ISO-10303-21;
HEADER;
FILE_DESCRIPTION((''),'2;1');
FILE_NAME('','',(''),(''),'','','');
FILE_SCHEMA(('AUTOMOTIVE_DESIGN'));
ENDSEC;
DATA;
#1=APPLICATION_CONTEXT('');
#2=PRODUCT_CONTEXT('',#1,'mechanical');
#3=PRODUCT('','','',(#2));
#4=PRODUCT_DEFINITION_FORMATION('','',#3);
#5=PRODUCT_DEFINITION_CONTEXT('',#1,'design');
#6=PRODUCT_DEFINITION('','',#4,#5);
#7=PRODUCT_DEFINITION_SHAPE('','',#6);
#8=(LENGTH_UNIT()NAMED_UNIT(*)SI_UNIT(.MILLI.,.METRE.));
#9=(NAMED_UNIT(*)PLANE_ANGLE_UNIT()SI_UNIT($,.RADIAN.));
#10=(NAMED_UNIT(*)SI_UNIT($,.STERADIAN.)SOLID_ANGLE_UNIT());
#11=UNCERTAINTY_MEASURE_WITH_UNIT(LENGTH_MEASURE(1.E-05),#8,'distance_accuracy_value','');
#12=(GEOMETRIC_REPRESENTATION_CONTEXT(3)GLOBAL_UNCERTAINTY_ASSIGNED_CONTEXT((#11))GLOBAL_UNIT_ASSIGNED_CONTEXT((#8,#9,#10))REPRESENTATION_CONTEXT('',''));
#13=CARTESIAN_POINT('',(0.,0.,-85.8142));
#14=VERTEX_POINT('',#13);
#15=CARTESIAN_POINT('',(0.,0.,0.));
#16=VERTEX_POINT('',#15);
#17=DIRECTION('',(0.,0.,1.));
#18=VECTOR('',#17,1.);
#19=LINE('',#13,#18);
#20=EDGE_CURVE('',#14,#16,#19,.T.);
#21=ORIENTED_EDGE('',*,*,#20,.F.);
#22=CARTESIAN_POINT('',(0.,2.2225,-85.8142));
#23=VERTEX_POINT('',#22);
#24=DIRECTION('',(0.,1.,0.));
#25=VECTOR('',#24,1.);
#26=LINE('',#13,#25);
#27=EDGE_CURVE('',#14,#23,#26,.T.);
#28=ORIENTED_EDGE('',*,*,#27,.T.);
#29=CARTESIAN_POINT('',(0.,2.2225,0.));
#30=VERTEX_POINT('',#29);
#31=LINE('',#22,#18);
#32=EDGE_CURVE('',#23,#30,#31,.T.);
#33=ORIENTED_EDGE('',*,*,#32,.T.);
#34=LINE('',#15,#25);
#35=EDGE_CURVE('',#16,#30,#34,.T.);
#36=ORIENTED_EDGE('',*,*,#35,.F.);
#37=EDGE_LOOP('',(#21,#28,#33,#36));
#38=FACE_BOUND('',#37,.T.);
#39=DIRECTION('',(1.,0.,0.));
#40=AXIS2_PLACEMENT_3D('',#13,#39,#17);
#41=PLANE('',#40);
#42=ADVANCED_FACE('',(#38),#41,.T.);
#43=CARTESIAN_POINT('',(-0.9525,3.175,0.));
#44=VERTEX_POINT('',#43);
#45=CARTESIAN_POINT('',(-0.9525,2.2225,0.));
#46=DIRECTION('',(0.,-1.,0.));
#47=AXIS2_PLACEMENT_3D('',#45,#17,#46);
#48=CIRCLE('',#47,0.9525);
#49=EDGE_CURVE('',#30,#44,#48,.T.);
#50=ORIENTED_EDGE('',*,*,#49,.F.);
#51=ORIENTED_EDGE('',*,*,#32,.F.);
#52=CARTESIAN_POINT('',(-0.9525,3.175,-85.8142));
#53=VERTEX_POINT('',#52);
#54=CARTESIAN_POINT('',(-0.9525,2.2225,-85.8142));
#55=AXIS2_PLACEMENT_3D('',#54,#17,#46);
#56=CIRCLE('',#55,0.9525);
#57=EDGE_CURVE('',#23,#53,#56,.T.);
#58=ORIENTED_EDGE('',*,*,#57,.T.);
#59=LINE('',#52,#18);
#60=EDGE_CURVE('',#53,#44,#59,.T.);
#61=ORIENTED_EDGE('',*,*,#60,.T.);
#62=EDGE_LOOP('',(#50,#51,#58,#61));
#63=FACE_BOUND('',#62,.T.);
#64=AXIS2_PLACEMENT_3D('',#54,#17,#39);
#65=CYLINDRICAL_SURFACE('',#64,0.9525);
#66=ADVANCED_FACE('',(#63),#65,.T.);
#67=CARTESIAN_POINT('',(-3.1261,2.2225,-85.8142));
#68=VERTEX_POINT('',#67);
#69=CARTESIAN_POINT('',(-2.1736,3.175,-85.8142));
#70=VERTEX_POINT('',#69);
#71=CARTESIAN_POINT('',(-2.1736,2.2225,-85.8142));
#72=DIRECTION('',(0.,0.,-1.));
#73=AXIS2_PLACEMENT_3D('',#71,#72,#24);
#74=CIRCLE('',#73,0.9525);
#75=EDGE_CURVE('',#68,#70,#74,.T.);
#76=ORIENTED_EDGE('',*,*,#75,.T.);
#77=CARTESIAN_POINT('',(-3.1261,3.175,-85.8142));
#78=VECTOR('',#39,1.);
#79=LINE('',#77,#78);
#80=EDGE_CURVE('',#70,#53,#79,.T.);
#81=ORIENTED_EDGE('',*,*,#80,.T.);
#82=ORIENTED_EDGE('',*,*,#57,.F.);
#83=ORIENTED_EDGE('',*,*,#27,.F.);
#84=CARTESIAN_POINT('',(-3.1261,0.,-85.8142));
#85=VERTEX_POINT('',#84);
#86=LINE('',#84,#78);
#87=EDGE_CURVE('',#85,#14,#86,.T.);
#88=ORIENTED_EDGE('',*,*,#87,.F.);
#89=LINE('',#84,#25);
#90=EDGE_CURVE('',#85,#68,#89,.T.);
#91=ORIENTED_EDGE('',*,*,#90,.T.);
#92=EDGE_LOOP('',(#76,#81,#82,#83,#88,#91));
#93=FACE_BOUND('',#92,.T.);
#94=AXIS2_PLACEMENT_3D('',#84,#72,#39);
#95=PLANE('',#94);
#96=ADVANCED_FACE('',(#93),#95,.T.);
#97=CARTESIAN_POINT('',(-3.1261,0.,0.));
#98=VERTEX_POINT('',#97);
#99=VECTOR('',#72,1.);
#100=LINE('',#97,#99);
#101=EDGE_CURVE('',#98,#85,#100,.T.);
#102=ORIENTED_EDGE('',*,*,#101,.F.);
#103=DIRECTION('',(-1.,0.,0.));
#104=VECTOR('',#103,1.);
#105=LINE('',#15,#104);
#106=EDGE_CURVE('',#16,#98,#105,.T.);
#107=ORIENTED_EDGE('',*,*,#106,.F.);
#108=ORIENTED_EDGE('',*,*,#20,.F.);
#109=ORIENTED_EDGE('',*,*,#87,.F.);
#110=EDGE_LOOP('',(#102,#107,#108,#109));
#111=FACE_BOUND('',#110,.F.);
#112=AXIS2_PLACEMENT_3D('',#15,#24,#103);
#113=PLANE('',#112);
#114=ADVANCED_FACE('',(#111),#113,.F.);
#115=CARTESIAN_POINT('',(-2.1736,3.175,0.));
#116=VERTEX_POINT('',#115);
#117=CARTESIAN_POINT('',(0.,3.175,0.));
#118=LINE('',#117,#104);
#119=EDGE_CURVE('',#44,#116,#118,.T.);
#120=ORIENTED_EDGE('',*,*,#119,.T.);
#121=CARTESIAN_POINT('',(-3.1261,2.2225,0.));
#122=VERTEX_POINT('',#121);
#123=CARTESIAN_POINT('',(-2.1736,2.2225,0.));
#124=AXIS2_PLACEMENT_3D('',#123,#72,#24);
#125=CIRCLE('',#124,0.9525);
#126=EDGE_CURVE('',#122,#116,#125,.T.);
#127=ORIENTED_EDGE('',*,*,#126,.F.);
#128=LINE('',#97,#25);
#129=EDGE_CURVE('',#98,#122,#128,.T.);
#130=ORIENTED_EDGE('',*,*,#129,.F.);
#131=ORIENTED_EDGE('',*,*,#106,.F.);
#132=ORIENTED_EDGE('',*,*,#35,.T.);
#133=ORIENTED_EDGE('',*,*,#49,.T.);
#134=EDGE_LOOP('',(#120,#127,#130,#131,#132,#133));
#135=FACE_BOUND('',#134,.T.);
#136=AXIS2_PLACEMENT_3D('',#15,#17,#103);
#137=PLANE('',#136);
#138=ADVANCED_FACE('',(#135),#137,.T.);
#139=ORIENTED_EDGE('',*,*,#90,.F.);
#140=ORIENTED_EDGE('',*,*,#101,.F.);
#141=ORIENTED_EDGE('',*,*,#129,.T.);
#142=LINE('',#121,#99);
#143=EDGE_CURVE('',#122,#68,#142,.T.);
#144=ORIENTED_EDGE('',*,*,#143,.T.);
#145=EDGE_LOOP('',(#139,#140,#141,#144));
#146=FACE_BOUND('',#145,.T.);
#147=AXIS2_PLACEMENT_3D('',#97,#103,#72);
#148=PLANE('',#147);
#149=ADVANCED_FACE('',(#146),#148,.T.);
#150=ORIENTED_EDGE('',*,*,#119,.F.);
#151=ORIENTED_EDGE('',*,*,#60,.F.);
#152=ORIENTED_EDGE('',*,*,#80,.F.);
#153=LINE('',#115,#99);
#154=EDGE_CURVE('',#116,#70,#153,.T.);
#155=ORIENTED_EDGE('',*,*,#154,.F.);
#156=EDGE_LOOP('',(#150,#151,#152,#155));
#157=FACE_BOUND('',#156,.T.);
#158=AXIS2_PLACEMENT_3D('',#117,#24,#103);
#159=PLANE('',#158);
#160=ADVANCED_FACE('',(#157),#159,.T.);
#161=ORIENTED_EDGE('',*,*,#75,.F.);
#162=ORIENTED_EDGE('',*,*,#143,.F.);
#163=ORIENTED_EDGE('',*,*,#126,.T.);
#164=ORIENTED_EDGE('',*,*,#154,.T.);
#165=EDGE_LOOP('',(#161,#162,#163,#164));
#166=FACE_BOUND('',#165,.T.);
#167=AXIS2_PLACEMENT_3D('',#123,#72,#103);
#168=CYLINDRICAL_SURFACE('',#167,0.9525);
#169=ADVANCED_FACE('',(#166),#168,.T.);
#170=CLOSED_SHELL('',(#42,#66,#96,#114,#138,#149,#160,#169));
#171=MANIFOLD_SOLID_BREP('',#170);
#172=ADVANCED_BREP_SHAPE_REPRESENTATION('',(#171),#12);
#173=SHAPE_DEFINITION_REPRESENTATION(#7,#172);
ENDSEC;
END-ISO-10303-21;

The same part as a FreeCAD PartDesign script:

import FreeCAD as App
import Part
import Sketcher

V = App.Vector
Q = App.Units.Quantity


def edges_at(feature, points):
    """Names of the edges that pass closest to the given points."""
    edges = feature.Shape.Edges
    near = lambda p: min(range(len(edges)), key=lambda i: edges[i].distToShape(Part.Vertex(*p))[0])
    return sorted({f"Edge{near(p) + 1}" for p in points})

doc = App.newDocument("Part")
body = doc.addObject("PartDesign::Body", "Body")

# Sketch on XZ plane
sketch1 = body.newObject("Sketcher::SketchObject", "Sketch")
sketch1.AttachmentSupport = (doc.getObject("XZ_Plane"), [""])
sketch1.MapMode = "FlatFace"
sketch1.addGeometry([
    Part.LineSegment(V(-3.1261, 0, 0), V(0, 0, 0)),
    Part.LineSegment(V(0, 0, 0), V(0, -85.8142, 0)),
    Part.LineSegment(V(0, -85.8142, 0), V(-3.1261, -85.8142, 0)),
    Part.LineSegment(V(-3.1261, -85.8142, 0), V(-3.1261, 0, 0)),
], False)
sketch1.addConstraint([
    Sketcher.Constraint("Coincident", 0, 2, 1, 1),
    Sketcher.Constraint("Coincident", 1, 2, 2, 1),
    Sketcher.Constraint("Coincident", 2, 2, 3, 1),
    Sketcher.Constraint("Coincident", 3, 2, 0, 1),
    Sketcher.Constraint("Horizontal", 0),
    Sketcher.Constraint("Vertical", 1),
    Sketcher.Constraint("Horizontal", 2),
    Sketcher.Constraint("Vertical", 3),
    Sketcher.Constraint("Coincident", 0, 2, -1, 1),
    Sketcher.Constraint("DistanceY", 1, 2, 1, 1, Q("3.3785 in")),
    Sketcher.Constraint("DistanceX", 0, 1, 0, 2, 3.126),
])
pad1 = body.newObject("PartDesign::Pad", "Pad")
pad1.Profile = sketch1
pad1.Length = Q("0.125 in")
pad1.Reversed = True
doc.recompute()

fillet = body.newObject("PartDesign::Fillet", "Fillet")
fillet.Base = (pad1, edges_at(pad1, [(0, 3.175, -42.907), (-3.126, 3.175, -42.907)]))
fillet.Radius = Q("0.0375 in")

doc.recompute()
